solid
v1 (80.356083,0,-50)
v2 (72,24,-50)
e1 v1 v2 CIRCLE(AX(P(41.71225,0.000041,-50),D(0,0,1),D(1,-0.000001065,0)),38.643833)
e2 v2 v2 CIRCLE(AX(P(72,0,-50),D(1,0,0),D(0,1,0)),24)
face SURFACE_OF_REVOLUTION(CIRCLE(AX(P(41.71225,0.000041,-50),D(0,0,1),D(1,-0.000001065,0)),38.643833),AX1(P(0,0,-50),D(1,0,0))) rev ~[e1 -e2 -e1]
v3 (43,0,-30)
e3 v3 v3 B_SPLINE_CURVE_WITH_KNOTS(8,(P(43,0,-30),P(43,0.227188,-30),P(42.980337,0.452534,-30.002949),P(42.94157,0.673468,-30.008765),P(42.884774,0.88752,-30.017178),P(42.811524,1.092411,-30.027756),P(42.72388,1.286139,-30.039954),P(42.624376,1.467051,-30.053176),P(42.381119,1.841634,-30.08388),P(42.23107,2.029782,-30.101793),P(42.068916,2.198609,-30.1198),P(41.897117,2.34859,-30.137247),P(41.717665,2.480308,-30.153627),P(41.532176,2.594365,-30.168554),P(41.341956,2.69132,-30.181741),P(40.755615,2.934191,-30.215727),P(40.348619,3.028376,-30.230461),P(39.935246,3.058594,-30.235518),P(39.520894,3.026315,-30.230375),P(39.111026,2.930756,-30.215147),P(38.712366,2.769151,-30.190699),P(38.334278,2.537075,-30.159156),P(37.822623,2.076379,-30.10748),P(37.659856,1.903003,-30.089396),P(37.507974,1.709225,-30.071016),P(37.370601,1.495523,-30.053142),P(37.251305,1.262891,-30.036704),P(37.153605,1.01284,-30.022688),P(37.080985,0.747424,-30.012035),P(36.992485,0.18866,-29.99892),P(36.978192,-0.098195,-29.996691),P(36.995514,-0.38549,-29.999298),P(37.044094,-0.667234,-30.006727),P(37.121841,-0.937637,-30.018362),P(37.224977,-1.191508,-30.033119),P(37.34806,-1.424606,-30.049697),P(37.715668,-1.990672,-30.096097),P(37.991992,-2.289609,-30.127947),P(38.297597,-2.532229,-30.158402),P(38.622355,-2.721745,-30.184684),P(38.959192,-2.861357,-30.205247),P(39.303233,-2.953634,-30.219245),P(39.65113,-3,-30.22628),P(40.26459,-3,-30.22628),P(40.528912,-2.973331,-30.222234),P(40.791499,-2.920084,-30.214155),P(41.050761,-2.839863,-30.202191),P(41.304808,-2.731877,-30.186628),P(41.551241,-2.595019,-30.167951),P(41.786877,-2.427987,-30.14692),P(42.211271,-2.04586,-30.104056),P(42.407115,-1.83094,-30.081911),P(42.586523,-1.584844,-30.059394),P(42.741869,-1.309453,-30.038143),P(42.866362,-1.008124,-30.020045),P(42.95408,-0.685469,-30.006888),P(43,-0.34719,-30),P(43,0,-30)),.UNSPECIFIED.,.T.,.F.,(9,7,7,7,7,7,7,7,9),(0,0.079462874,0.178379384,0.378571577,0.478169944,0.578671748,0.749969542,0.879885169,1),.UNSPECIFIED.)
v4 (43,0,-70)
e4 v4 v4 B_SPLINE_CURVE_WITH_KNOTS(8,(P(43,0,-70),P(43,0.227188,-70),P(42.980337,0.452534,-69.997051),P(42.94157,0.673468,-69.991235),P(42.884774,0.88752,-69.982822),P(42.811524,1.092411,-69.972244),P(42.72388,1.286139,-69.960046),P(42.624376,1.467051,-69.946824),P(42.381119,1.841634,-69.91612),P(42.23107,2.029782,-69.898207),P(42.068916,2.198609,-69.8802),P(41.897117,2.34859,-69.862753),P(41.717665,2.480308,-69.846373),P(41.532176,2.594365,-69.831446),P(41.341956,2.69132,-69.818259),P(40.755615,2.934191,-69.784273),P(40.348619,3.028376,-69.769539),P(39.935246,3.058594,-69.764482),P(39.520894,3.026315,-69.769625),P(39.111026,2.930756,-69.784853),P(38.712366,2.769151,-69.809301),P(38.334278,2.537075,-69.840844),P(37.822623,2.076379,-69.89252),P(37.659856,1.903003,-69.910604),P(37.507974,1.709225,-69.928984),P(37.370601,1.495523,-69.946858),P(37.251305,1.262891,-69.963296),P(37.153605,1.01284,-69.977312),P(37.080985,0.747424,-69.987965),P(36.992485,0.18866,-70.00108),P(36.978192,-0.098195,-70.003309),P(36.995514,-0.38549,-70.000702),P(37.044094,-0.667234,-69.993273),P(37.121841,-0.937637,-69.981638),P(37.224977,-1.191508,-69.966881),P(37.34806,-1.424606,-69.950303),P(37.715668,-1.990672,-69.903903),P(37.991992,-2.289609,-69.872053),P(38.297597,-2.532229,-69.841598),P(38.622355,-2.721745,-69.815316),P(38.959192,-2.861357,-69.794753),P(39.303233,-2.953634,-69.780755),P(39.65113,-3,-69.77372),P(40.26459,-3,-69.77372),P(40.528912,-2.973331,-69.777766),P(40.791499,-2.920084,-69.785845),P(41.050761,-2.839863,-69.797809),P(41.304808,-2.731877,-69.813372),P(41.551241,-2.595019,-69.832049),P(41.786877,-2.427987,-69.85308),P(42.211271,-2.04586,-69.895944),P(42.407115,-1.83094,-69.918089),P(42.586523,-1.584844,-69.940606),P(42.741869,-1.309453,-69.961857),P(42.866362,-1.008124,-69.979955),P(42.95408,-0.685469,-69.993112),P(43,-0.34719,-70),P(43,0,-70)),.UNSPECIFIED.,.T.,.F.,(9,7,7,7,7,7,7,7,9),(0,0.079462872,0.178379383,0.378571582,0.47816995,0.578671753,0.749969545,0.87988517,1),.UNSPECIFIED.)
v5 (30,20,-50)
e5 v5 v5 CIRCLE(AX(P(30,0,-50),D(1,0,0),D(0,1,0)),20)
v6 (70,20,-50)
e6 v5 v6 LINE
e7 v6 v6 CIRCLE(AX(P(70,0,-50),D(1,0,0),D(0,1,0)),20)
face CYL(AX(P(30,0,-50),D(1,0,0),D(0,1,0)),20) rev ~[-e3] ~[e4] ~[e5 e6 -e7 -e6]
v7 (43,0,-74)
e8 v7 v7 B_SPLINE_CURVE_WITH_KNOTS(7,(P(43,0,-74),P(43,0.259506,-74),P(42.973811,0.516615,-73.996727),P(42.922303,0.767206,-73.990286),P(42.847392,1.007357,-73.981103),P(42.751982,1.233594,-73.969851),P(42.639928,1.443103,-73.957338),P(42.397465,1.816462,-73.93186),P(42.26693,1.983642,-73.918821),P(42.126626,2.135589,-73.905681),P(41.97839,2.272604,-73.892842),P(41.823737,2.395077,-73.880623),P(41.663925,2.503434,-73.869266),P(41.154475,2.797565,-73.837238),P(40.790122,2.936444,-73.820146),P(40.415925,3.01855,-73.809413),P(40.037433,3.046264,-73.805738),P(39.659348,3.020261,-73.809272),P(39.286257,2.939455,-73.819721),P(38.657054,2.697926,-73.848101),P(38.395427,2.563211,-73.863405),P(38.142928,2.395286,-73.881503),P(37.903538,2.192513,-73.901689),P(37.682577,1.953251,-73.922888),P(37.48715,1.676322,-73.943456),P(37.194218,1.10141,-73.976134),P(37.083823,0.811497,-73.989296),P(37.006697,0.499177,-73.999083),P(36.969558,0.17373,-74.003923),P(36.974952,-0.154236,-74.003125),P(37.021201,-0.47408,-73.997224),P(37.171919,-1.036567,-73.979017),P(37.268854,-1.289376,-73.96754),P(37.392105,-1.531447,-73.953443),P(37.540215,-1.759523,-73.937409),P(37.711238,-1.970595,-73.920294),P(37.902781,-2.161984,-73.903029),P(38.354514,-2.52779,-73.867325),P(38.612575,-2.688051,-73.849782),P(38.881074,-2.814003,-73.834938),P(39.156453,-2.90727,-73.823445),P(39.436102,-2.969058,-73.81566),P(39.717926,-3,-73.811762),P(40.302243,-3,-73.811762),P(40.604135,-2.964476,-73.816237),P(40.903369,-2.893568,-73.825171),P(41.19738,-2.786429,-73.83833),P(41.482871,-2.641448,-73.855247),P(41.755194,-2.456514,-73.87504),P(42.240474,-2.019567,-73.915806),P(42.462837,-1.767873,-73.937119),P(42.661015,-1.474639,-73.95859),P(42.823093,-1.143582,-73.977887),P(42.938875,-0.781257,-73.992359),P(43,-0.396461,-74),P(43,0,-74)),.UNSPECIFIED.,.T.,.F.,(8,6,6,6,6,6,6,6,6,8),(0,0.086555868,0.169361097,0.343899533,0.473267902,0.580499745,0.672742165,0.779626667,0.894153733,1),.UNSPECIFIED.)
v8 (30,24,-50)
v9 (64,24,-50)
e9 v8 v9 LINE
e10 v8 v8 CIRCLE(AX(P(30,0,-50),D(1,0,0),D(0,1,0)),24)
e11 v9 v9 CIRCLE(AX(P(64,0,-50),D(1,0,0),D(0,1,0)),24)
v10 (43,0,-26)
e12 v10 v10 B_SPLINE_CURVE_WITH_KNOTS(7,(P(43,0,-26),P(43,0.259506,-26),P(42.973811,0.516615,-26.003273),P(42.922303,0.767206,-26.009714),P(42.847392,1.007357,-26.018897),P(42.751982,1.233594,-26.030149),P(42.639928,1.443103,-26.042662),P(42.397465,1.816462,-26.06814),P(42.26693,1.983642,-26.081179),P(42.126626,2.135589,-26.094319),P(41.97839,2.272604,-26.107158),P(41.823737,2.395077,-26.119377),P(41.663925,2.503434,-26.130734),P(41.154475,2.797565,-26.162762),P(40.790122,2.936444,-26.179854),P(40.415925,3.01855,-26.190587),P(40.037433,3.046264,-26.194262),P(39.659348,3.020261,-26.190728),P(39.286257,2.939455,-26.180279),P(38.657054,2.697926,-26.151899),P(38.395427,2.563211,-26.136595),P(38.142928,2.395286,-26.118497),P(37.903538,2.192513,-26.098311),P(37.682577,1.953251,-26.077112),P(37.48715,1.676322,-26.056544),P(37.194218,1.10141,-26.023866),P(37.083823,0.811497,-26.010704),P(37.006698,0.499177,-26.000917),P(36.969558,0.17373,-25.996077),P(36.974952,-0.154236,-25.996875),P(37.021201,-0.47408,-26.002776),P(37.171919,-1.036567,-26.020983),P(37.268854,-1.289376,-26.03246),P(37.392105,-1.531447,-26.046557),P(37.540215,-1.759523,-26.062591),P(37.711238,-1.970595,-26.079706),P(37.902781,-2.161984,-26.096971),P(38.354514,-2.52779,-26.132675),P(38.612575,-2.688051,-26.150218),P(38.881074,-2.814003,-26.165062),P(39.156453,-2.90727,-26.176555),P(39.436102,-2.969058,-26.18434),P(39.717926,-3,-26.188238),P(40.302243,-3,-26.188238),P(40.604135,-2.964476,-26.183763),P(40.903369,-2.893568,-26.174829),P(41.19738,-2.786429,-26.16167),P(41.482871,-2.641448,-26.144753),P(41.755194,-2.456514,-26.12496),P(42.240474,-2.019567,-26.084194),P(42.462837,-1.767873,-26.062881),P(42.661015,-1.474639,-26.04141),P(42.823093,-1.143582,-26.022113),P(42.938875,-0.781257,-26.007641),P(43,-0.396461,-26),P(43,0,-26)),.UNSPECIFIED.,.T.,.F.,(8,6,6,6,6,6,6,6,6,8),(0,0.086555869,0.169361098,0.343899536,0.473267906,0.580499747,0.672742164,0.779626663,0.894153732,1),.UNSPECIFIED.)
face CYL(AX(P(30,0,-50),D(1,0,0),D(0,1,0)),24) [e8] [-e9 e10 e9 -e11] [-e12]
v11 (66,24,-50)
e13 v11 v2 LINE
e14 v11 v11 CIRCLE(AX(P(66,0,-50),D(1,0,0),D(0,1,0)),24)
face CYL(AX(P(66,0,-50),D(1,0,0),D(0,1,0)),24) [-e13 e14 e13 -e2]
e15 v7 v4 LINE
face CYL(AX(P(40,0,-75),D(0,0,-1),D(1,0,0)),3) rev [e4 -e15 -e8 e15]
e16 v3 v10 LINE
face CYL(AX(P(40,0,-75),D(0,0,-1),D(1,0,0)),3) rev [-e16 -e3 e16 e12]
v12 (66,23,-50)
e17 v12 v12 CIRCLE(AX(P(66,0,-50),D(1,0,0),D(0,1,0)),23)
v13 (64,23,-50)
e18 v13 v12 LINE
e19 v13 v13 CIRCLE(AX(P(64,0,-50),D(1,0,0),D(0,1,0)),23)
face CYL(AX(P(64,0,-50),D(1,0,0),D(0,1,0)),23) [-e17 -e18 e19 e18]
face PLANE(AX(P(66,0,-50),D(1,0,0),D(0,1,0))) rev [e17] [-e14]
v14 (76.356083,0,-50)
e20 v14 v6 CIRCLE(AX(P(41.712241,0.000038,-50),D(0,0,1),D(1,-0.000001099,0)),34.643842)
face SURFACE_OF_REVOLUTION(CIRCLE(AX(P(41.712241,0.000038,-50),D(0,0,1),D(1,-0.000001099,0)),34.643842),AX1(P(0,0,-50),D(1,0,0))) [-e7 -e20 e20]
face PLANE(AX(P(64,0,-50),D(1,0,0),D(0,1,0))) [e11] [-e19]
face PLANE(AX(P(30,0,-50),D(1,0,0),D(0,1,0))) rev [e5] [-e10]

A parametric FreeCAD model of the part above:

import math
import FreeCAD as App
import Part
import Sketcher

V = App.Vector
Q = App.Units.Quantity

doc = App.newDocument("Part")
body = doc.addObject("PartDesign::Body", "Body")

sketch1 = body.newObject("Sketcher::SketchObject", "Sketch")
sketch1.AttachmentSupport = (doc.getObject("XY_Plane"), [""])
sketch1.MapMode = "FlatFace"
sketch1.AttachmentOffset = App.Placement(V(0, 0, -75), App.Rotation())
sketch1.addGeometry(Part.Circle(V(40, 0, 0), V(0, 0, 1), 3), False)
sketch1.addConstraint([
    Sketcher.Constraint("PointOnObject", 0, 3, -1),
    Sketcher.Constraint("Diameter", 0, Q("6 mm")),
    Sketcher.Constraint("DistanceX", -1, 1, 0, 3, Q("40 mm")),
])
pad1 = body.newObject("PartDesign::Pad", "Pad")
pad1.Profile = sketch1
pad1.Length = 49
body2 = doc.addObject("PartDesign::Body", "Body001")

sketch2 = body2.newObject("Sketcher::SketchObject", "Sketch001")
sketch2.AttachmentSupport = (doc.getObject("XY_Plane001"), [""])
sketch2.MapMode = "FlatFace"
sketch2.AttachmentOffset = App.Placement(V(0, 0, -50), App.Rotation())
sketch2.addGeometry([
    Part.LineSegment(V(30, 20, 0), V(70, 20, 0)),
    Part.ArcOfCircle(Part.Circle(V(41.7, 0, 0), V(0, 0, 1), 34.6), math.radians(0), math.radians(35)),
    Part.LineSegment(V(76.4, 0, 0), V(80.4, 0, 0)),
    Part.ArcOfCircle(Part.Circle(V(41.7, 0, 0), V(0, 0, 1), 38.6), math.radians(0), math.radians(38)),
    Part.LineSegment(V(72, 24, 0), V(66, 24, 0)),
    Part.LineSegment(V(66, 24, 0), V(66, 23, 0)),
    Part.LineSegment(V(66, 23, 0), V(64, 23, 0)),
    Part.LineSegment(V(64, 23, 0), V(64, 24, 0)),
    Part.LineSegment(V(64, 24, 0), V(30, 24, 0)),
    Part.LineSegment(V(30, 24, 0), V(30, 20, 0)),
], False)
sketch2.addConstraint([
    Sketcher.Constraint("Coincident", 0, 2, 1, 2),
    Sketcher.Constraint("Coincident", 1, 1, 2, 1),
    Sketcher.Constraint("Coincident", 2, 2, 3, 1),
    Sketcher.Constraint("Coincident", 3, 2, 4, 1),
    Sketcher.Constraint("Coincident", 4, 2, 5, 1),
    Sketcher.Constraint("Coincident", 5, 2, 6, 1),
    Sketcher.Constraint("Coincident", 6, 2, 7, 1),
    Sketcher.Constraint("Coincident", 7, 2, 8, 1),
    Sketcher.Constraint("Coincident", 8, 2, 9, 1),
    Sketcher.Constraint("Coincident", 9, 2, 0, 1),
    Sketcher.Constraint("Horizontal", 0),
    Sketcher.Constraint("Horizontal", 2),
    Sketcher.Constraint("Horizontal", 4),
    Sketcher.Constraint("Vertical", 5),
    Sketcher.Constraint("Horizontal", 6),
    Sketcher.Constraint("Vertical", 7),
    Sketcher.Constraint("Horizontal", 8),
    Sketcher.Constraint("Vertical", 9),
    Sketcher.Constraint("Coincident", 3, 3, 1, 3),
    Sketcher.Constraint("PointOnObject", 1, 1, -1),
    Sketcher.Constraint("Horizontal", 4, 2, 7, 2),
    Sketcher.Constraint("Equal", 2, 9),
    Sketcher.Constraint("DistanceX", 0, 1, 0, 2, Q("40 mm")),
    Sketcher.Constraint("DistanceX", 2, 1, 2, 2, Q("4 mm")),
    Sketcher.Constraint("DistanceX", 4, 2, 4, 1, Q("6 mm")),
    Sketcher.Constraint("DistanceX", 6, 2, 6, 1, Q("2 mm")),
    Sketcher.Constraint("DistanceX", 8, 2, 8, 1, Q("34 mm")),
    Sketcher.Constraint("DistanceY", 5, 2, 5, 1, Q("1 mm")),
    Sketcher.Constraint("DistanceX", -1, 1, 0, 2, Q("70 mm")),
    Sketcher.Constraint("DistanceY", -1, 1, 0, 2, Q("20 mm")),
    Sketcher.Constraint("Radius", 1, Q("34.643842 mm")),
])
revolution = body2.newObject("PartDesign::Revolution", "Revolution")
revolution.Profile = sketch2
revolution.ReferenceAxis = (sketch2, ["H_Axis"])
revolution.Angle = 360
doc.recompute()

boolean = body2.newObject("PartDesign::Boolean", "Boolean")
boolean.Type = "Cut"
boolean.addObjects([body])

doc.recompute()
